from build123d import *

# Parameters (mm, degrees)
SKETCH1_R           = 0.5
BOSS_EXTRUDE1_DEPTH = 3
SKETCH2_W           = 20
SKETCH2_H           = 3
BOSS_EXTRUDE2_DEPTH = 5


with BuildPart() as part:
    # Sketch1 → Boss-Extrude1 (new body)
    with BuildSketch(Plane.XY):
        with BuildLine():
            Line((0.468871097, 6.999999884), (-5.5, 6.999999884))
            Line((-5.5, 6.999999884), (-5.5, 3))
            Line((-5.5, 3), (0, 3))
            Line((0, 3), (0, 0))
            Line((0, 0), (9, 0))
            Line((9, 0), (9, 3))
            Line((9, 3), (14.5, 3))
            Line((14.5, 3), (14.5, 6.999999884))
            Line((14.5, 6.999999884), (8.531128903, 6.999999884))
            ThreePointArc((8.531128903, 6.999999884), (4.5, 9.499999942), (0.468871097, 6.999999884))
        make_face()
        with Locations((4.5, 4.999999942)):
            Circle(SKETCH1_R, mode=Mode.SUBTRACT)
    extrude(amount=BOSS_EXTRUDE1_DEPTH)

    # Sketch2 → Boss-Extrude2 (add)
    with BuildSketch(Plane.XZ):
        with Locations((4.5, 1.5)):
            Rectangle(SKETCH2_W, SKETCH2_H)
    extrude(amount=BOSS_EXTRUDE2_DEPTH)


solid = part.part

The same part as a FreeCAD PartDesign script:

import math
import FreeCAD as App
import Part
import Sketcher

V = App.Vector

doc = App.newDocument("Part")
body = doc.addObject("PartDesign::Body", "Body")

# Sketch on XY plane
sketch1 = doc.addObject("Sketcher::SketchObject", "Sketch")
body.addObject(sketch1)
sketch1.AttachmentSupport = (doc.XY_Plane, [""])
sketch1.MapMode = "FlatFace"
sketch1.addGeometry(Part.LineSegment(V(0.468871, 7, 0), V(-5.5, 7, 0)), False)
sketch1.addGeometry(Part.LineSegment(V(-5.5, 7, 0), V(-5.5, 3, 0)), False)
sketch1.addGeometry(Part.LineSegment(V(-5.5, 3, 0), V(0, 3, 0)), False)
sketch1.addGeometry(Part.LineSegment(V(0, 3, 0), V(0, 0, 0)), False)
sketch1.addGeometry(Part.LineSegment(V(0, 0, 0), V(9, 0, 0)), False)
sketch1.addGeometry(Part.LineSegment(V(9, 0, 0), V(9, 3, 0)), False)
sketch1.addGeometry(Part.LineSegment(V(9, 3, 0), V(14.5, 3, 0)), False)
sketch1.addGeometry(Part.LineSegment(V(14.5, 3, 0), V(14.5, 7, 0)), False)
sketch1.addGeometry(Part.LineSegment(V(14.5, 7, 0), V(8.531129, 7, 0)), False)
sketch1.addGeometry(Part.ArcOfCircle(Part.Circle(V(4.5, 5, 0), V(0, 0, 1), 4.5), math.radians(26.387799), math.radians(153.612201)), False)
sketch1.addGeometry(Part.Circle(V(4.5, 5, 0), V(0, 0, 1), 0.5), False)
sketch1.addConstraint(Sketcher.Constraint("Coincident", 0, 2, 1, 1))
sketch1.addConstraint(Sketcher.Constraint("Coincident", 1, 2, 2, 1))
sketch1.addConstraint(Sketcher.Constraint("Coincident", 2, 2, 3, 1))
sketch1.addConstraint(Sketcher.Constraint("Coincident", 3, 2, 4, 1))
sketch1.addConstraint(Sketcher.Constraint("Coincident", 4, 2, 5, 1))
sketch1.addConstraint(Sketcher.Constraint("Coincident", 5, 2, 6, 1))
sketch1.addConstraint(Sketcher.Constraint("Coincident", 6, 2, 7, 1))
sketch1.addConstraint(Sketcher.Constraint("Coincident", 7, 2, 8, 1))
sketch1.addConstraint(Sketcher.Constraint("Coincident", 8, 2, 9, 1))
sketch1.addConstraint(Sketcher.Constraint("Coincident", 9, 2, 0, 1))
sketch1.addConstraint(Sketcher.Constraint("Horizontal", 0))
sketch1.addConstraint(Sketcher.Constraint("Vertical", 1))
sketch1.addConstraint(Sketcher.Constraint("Horizontal", 2))
sketch1.addConstraint(Sketcher.Constraint("Vertical", 3))
sketch1.addConstraint(Sketcher.Constraint("Horizontal", 4))
sketch1.addConstraint(Sketcher.Constraint("Vertical", 5))
sketch1.addConstraint(Sketcher.Constraint("Horizontal", 6))
sketch1.addConstraint(Sketcher.Constraint("Vertical", 7))
sketch1.addConstraint(Sketcher.Constraint("Horizontal", 8))
sketch1.addConstraint(Sketcher.Constraint("Coincident", 3, 2, -1, 1))
sketch1.addConstraint(Sketcher.Constraint("Coincident", 10, 3, 9, 3))
sketch1.addConstraint(Sketcher.Constraint("Horizontal", 2, 2, 5, 2))
sketch1.addConstraint(Sketcher.Constraint("Horizontal", 0, 2, 7, 2))
sketch1.addConstraint(Sketcher.Constraint("Equal", 2, 6))
sketch1.addConstraint(Sketcher.Constraint("Equal", 0, 8))
sketch1.addConstraint(Sketcher.Constraint("Diameter", 10, 1.0))
sketch1.addConstraint(Sketcher.Constraint("Radius", 9, 4.5))
sketch1.addConstraint(Sketcher.Constraint("DistanceX", 4, 1, 4, 2, 9.0))
sketch1.addConstraint(Sketcher.Constraint("DistanceY", 1, 2, 1, 1, 4.0))
sketch1.addConstraint(Sketcher.Constraint("DistanceY", 3, 2, 3, 1, 3.0))
sketch1.addConstraint(Sketcher.Constraint("DistanceX", 2, 1, 2, 2, 5.5))
sketch1.addConstraint(Sketcher.Constraint("DistanceY", -1, 1, 9, 3, 5.0))
pad1 = doc.addObject("PartDesign::Pad", "Pad")
body.addObject(pad1)
pad1.Profile = sketch1
pad1.Length = 3

# Sketch on XZ plane
sketch2 = doc.addObject("Sketcher::SketchObject", "Sketch001")
body.addObject(sketch2)
sketch2.AttachmentSupport = (doc.XZ_Plane, [""])
sketch2.MapMode = "FlatFace"
sketch2.addGeometry(Part.LineSegment(V(-5.5, 3, 0), V(-5.5, 0, 0)), False)
sketch2.addGeometry(Part.LineSegment(V(-5.5, 0, 0), V(14.5, 0, 0)), False)
sketch2.addGeometry(Part.LineSegment(V(14.5, 0, 0), V(14.5, 3, 0)), False)
sketch2.addGeometry(Part.LineSegment(V(14.5, 3, 0), V(-5.5, 3, 0)), False)
sketch2.addConstraint(Sketcher.Constraint("Coincident", 0, 2, 1, 1))
sketch2.addConstraint(Sketcher.Constraint("Coincident", 1, 2, 2, 1))
sketch2.addConstraint(Sketcher.Constraint("Coincident", 2, 2, 3, 1))
sketch2.addConstraint(Sketcher.Constraint("Coincident", 3, 2, 0, 1))
sketch2.addConstraint(Sketcher.Constraint("Vertical", 0))
sketch2.addConstraint(Sketcher.Constraint("Horizontal", 1))
sketch2.addConstraint(Sketcher.Constraint("Vertical", 2))
sketch2.addConstraint(Sketcher.Constraint("Horizontal", 3))
sketch2.addConstraint(Sketcher.Constraint("PointOnObject", 0, 2, -1))
sketch2.addConstraint(Sketcher.Constraint("DistanceX", 1, 1, 1, 2, 20.0))
sketch2.addConstraint(Sketcher.Constraint("DistanceY", 0, 2, 0, 1, 3.0))
sketch2.addConstraint(Sketcher.Constraint("DistanceX", 0, 2, -1, 1, 5.5))
pad2 = doc.addObject("PartDesign::Pad", "Pad001")
body.addObject(pad2)
pad2.Profile = sketch2
pad2.Length = 5

doc.recompute()
